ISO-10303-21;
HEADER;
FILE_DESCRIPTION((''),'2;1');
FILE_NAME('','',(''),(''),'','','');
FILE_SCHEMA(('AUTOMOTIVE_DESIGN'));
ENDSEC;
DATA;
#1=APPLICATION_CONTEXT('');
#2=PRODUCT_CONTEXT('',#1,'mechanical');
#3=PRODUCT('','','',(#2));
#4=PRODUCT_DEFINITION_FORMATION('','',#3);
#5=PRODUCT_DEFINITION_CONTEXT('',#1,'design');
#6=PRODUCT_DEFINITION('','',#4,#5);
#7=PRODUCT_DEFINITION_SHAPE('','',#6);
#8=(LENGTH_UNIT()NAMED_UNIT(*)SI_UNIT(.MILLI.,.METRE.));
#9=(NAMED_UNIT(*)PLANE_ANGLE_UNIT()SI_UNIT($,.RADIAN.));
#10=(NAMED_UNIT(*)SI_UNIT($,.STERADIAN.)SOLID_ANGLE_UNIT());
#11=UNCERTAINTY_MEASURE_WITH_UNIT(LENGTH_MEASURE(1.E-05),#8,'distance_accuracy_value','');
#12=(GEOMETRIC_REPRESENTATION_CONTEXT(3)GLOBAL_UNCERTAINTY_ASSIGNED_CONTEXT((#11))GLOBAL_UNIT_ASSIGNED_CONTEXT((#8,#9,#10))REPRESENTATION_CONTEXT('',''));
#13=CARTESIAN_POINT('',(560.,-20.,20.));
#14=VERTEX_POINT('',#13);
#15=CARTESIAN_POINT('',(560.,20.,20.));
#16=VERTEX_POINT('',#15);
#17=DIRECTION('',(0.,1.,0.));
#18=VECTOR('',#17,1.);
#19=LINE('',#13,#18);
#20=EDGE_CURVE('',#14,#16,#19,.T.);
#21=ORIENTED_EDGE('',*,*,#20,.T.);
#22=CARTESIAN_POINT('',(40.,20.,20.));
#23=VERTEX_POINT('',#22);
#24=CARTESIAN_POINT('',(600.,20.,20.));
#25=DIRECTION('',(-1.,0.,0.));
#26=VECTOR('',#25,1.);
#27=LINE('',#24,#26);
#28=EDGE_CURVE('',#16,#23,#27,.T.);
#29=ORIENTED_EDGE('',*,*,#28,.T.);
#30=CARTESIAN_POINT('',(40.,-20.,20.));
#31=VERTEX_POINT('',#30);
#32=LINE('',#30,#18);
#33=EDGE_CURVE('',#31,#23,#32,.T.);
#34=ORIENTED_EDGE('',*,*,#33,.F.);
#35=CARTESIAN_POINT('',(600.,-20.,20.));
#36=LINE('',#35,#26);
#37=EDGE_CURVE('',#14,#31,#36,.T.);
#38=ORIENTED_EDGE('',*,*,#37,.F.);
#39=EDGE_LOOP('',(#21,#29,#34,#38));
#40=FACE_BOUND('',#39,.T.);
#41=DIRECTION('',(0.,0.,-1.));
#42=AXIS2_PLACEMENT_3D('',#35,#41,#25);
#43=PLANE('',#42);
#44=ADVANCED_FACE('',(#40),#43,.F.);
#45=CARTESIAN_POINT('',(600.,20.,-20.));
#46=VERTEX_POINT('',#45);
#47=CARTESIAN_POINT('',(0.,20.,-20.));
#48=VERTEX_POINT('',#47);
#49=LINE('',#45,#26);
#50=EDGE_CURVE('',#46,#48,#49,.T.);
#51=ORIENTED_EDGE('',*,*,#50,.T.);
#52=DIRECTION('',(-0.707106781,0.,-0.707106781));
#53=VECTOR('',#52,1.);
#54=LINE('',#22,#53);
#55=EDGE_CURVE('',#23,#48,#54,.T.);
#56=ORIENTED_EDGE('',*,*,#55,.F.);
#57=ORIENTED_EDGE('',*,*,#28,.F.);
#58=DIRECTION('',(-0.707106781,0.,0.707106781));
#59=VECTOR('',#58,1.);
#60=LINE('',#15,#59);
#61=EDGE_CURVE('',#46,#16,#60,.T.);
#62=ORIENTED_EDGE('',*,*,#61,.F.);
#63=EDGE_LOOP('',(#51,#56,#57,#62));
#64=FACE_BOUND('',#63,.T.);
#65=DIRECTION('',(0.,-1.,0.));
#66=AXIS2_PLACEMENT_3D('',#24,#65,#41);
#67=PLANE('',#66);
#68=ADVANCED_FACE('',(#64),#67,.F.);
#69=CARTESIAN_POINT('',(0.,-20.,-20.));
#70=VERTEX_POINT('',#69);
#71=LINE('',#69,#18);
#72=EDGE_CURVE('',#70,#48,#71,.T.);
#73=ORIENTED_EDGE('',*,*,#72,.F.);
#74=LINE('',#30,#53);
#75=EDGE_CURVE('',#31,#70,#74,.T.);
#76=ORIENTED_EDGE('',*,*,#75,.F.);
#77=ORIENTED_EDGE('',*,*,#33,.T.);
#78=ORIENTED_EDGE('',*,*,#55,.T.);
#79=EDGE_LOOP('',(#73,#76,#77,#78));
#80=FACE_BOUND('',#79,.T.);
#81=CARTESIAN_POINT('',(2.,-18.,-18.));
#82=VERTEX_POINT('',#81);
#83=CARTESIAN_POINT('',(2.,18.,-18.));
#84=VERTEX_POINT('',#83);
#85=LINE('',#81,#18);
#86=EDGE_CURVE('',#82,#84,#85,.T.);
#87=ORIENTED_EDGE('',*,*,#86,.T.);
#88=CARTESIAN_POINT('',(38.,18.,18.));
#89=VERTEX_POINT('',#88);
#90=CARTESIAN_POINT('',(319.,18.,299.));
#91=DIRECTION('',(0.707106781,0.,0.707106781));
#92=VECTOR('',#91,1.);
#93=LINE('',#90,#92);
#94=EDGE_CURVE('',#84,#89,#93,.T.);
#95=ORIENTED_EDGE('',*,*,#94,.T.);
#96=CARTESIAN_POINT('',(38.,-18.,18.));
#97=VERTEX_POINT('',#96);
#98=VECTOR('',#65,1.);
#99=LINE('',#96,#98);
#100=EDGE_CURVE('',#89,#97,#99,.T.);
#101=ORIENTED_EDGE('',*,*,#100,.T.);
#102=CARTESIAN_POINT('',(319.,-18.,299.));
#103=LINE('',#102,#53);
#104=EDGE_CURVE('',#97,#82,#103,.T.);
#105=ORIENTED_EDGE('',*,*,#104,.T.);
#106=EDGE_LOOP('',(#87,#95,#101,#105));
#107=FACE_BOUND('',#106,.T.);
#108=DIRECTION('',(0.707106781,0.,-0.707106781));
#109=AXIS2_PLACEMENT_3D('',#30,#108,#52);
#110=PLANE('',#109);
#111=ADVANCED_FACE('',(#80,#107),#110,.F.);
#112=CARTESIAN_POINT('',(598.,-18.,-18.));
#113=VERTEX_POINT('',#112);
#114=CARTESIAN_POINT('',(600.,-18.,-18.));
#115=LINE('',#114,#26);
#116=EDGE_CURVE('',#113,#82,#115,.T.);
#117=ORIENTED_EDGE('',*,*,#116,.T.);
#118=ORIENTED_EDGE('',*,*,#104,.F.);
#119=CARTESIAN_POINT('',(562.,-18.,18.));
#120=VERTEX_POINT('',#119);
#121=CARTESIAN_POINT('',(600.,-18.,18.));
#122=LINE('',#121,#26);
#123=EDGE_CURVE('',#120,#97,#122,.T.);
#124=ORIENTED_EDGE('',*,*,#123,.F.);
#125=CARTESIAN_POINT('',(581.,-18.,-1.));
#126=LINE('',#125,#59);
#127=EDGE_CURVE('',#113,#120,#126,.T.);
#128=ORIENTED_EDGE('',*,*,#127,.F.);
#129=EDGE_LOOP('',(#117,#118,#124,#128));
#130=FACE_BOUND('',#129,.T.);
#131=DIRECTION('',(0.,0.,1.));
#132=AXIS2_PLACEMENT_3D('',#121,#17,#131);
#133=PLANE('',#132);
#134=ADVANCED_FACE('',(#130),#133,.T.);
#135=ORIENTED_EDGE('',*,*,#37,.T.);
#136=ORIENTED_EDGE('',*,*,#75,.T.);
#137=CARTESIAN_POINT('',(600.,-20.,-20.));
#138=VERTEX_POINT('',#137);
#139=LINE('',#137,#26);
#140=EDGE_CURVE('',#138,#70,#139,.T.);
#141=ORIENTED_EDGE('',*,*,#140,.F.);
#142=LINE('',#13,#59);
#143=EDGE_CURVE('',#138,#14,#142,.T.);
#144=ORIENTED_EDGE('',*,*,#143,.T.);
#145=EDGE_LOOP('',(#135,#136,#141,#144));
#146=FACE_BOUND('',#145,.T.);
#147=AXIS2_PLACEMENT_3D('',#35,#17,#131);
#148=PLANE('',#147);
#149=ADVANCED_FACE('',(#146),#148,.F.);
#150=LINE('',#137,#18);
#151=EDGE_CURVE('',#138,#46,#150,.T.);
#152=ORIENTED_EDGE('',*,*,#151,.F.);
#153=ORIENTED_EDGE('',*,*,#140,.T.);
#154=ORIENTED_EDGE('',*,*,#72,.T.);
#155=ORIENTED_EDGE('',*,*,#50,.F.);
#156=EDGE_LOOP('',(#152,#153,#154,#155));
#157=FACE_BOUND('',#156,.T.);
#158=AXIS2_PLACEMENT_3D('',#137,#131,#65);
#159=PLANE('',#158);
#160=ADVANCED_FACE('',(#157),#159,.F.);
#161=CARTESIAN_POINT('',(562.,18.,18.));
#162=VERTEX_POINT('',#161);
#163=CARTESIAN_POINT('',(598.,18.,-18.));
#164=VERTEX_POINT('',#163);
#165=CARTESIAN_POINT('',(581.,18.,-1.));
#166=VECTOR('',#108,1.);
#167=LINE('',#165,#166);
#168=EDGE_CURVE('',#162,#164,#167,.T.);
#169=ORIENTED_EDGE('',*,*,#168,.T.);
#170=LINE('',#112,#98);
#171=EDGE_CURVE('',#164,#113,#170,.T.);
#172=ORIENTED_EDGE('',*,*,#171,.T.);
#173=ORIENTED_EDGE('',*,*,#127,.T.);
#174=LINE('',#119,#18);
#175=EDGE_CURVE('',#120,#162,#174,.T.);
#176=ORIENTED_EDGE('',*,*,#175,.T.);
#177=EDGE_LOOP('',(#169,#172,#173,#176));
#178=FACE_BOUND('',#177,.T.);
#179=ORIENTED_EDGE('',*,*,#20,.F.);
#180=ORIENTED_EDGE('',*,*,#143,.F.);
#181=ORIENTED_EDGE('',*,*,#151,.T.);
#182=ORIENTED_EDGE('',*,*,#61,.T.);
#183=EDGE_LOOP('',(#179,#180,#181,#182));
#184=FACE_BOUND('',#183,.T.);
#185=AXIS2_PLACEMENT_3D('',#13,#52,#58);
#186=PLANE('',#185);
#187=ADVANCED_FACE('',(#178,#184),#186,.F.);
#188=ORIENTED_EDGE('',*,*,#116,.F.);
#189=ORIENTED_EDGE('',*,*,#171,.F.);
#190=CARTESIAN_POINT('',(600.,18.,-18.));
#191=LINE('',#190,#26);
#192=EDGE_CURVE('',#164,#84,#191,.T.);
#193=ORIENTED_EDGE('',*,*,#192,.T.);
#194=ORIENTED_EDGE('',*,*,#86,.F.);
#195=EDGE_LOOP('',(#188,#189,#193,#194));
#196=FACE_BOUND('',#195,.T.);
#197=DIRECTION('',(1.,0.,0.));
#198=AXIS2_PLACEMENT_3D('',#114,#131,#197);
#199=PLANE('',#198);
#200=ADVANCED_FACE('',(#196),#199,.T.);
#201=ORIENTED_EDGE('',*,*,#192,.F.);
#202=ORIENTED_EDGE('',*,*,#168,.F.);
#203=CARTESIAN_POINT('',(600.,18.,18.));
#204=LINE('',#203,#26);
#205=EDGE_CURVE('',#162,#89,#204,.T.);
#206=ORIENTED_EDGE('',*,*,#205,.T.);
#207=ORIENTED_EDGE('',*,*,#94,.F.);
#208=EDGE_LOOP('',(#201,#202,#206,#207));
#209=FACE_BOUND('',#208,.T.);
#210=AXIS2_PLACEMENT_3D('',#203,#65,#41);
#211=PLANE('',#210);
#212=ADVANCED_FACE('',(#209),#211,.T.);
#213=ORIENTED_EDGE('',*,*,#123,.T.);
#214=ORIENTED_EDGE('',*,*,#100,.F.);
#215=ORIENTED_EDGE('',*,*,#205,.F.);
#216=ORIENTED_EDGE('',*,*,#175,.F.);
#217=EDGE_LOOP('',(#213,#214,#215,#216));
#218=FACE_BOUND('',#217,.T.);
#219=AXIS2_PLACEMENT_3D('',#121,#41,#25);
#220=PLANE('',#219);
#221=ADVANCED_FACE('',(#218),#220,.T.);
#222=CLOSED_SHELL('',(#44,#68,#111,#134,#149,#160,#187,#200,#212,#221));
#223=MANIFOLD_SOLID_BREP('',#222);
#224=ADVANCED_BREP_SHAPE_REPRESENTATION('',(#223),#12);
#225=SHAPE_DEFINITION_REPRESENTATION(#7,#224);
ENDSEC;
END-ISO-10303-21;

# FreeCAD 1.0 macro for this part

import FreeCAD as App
import Part
import Sketcher
from FreeCAD import Vector
Q = App.Units.Quantity

doc = App.newDocument("Part")
body = doc.addObject("PartDesign::Body", "Body")

# Sketch on YZ plane
sketch1 = body.newObject("Sketcher::SketchObject", "Sketch")
sketch1.AttachmentSupport = (doc.getObject("YZ_Plane"), [""])
sketch1.MapMode = "FlatFace"
sketch1.addGeometry(Part.LineSegment(Vector(20, 20, 0), Vector(-20, 20, 0)), False)
sketch1.addGeometry(Part.LineSegment(Vector(-20, 20, 0), Vector(-20, -20, 0)), False)
sketch1.addGeometry(Part.LineSegment(Vector(-20, -20, 0), Vector(20, -20, 0)), False)
sketch1.addGeometry(Part.LineSegment(Vector(20, -20, 0), Vector(20, 20, 0)), False)
sketch1.addGeometry(Part.LineSegment(Vector(-18, -18, 0), Vector(-18, 18, 0)), False)
sketch1.addGeometry(Part.LineSegment(Vector(-18, 18, 0), Vector(18, 18, 0)), False)
sketch1.addGeometry(Part.LineSegment(Vector(18, 18, 0), Vector(18, -18, 0)), False)
sketch1.addGeometry(Part.LineSegment(Vector(18, -18, 0), Vector(-18, -18, 0)), False)
sketch1.addConstraint(Sketcher.Constraint("Coincident", 0, 2, 1, 1))
sketch1.addConstraint(Sketcher.Constraint("Coincident", 1, 2, 2, 1))
sketch1.addConstraint(Sketcher.Constraint("Coincident", 2, 2, 3, 1))
sketch1.addConstraint(Sketcher.Constraint("Coincident", 3, 2, 0, 1))
sketch1.addConstraint(Sketcher.Constraint("Coincident", 4, 2, 5, 1))
sketch1.addConstraint(Sketcher.Constraint("Coincident", 5, 2, 6, 1))
sketch1.addConstraint(Sketcher.Constraint("Coincident", 6, 2, 7, 1))
sketch1.addConstraint(Sketcher.Constraint("Coincident", 7, 2, 4, 1))
sketch1.addConstraint(Sketcher.Constraint("Horizontal", 0))
sketch1.addConstraint(Sketcher.Constraint("Vertical", 1))
sketch1.addConstraint(Sketcher.Constraint("Horizontal", 2))
sketch1.addConstraint(Sketcher.Constraint("Vertical", 3))
sketch1.addConstraint(Sketcher.Constraint("Vertical", 4))
sketch1.addConstraint(Sketcher.Constraint("Horizontal", 5))
sketch1.addConstraint(Sketcher.Constraint("Vertical", 6))
sketch1.addConstraint(Sketcher.Constraint("Horizontal", 7))
sketch1.addConstraint(Sketcher.Constraint("Symmetric", 0, 2, 2, 2, -1, 1))
sketch1.addConstraint(Sketcher.Constraint("Symmetric", 4, 2, 6, 2, -1, 1))
sketch1.addConstraint(Sketcher.Constraint("Equal", 2, 1))
sketch1.addConstraint(Sketcher.Constraint("Equal", 7, 4))
sketch1.addConstraint(Sketcher.Constraint("DistanceX", 0, 2, 0, 1, Q("40 mm")))
sketch1.addConstraint(Sketcher.Constraint("DistanceX", 5, 1, 5, 2, Q("36 mm")))
pad1 = body.newObject("PartDesign::Pad", "Pad")
pad1.Profile = sketch1
pad1.Length = 600

# Sketch on XZ plane
sketch2 = body.newObject("Sketcher::SketchObject", "Sketch001")
sketch2.AttachmentSupport = (doc.getObject("XZ_Plane"), [""])
sketch2.MapMode = "FlatFace"
sketch2.AttachmentOffset = App.Placement(Vector(0, 0, -20), App.Rotation())
sketch2.addGeometry(Part.LineSegment(Vector(0, -20, 0), Vector(0, 20, 0)), False)
sketch2.addGeometry(Part.LineSegment(Vector(0, 20, 0), Vector(40, 20, 0)), False)
sketch2.addGeometry(Part.LineSegment(Vector(40, 20, 0), Vector(0, -20, 0)), False)
sketch2.addGeometry(Part.LineSegment(Vector(600, -20, 0), Vector(560, 20, 0)), False)
sketch2.addGeometry(Part.LineSegment(Vector(560, 20, 0), Vector(600, 20, 0)), False)
sketch2.addGeometry(Part.LineSegment(Vector(600, 20, 0), Vector(600, -20, 0)), False)
sketch2.addConstraint(Sketcher.Constraint("Coincident", 0, 2, 1, 1))
sketch2.addConstraint(Sketcher.Constraint("Coincident", 1, 2, 2, 1))
sketch2.addConstraint(Sketcher.Constraint("Coincident", 2, 2, 0, 1))
sketch2.addConstraint(Sketcher.Constraint("Coincident", 3, 2, 4, 1))
sketch2.addConstraint(Sketcher.Constraint("Coincident", 4, 2, 5, 1))
sketch2.addConstraint(Sketcher.Constraint("Coincident", 5, 2, 3, 1))
sketch2.addConstraint(Sketcher.Constraint("Vertical", 0))
sketch2.addConstraint(Sketcher.Constraint("Horizontal", 1))
sketch2.addConstraint(Sketcher.Constraint("Horizontal", 4))
sketch2.addConstraint(Sketcher.Constraint("Vertical", 5))
sketch2.addConstraint(Sketcher.Constraint("Symmetric", 0, 2, 2, 2, -1, 1))
sketch2.addConstraint(Sketcher.Constraint("Perpendicular", 2, 3))
sketch2.addConstraint(Sketcher.Constraint("Horizontal", 1, 2, 3, 2))
sketch2.addConstraint(Sketcher.Constraint("Horizontal", 2, 2, 5, 2))
sketch2.addConstraint(Sketcher.Constraint("Equal", 1, 4))
sketch2.addConstraint(Sketcher.Constraint("DistanceX", 1, 1, 1, 2, Q("40 mm")))
sketch2.addConstraint(Sketcher.Constraint("DistanceX", -1, 1, 3, 2, Q("560 mm")))
pocket1 = body.newObject("PartDesign::Pocket", "Pocket")
pocket1.Profile = sketch2
pocket1.Type = "ThroughAll"
pocket1.Reversed = True

doc.recompute()
